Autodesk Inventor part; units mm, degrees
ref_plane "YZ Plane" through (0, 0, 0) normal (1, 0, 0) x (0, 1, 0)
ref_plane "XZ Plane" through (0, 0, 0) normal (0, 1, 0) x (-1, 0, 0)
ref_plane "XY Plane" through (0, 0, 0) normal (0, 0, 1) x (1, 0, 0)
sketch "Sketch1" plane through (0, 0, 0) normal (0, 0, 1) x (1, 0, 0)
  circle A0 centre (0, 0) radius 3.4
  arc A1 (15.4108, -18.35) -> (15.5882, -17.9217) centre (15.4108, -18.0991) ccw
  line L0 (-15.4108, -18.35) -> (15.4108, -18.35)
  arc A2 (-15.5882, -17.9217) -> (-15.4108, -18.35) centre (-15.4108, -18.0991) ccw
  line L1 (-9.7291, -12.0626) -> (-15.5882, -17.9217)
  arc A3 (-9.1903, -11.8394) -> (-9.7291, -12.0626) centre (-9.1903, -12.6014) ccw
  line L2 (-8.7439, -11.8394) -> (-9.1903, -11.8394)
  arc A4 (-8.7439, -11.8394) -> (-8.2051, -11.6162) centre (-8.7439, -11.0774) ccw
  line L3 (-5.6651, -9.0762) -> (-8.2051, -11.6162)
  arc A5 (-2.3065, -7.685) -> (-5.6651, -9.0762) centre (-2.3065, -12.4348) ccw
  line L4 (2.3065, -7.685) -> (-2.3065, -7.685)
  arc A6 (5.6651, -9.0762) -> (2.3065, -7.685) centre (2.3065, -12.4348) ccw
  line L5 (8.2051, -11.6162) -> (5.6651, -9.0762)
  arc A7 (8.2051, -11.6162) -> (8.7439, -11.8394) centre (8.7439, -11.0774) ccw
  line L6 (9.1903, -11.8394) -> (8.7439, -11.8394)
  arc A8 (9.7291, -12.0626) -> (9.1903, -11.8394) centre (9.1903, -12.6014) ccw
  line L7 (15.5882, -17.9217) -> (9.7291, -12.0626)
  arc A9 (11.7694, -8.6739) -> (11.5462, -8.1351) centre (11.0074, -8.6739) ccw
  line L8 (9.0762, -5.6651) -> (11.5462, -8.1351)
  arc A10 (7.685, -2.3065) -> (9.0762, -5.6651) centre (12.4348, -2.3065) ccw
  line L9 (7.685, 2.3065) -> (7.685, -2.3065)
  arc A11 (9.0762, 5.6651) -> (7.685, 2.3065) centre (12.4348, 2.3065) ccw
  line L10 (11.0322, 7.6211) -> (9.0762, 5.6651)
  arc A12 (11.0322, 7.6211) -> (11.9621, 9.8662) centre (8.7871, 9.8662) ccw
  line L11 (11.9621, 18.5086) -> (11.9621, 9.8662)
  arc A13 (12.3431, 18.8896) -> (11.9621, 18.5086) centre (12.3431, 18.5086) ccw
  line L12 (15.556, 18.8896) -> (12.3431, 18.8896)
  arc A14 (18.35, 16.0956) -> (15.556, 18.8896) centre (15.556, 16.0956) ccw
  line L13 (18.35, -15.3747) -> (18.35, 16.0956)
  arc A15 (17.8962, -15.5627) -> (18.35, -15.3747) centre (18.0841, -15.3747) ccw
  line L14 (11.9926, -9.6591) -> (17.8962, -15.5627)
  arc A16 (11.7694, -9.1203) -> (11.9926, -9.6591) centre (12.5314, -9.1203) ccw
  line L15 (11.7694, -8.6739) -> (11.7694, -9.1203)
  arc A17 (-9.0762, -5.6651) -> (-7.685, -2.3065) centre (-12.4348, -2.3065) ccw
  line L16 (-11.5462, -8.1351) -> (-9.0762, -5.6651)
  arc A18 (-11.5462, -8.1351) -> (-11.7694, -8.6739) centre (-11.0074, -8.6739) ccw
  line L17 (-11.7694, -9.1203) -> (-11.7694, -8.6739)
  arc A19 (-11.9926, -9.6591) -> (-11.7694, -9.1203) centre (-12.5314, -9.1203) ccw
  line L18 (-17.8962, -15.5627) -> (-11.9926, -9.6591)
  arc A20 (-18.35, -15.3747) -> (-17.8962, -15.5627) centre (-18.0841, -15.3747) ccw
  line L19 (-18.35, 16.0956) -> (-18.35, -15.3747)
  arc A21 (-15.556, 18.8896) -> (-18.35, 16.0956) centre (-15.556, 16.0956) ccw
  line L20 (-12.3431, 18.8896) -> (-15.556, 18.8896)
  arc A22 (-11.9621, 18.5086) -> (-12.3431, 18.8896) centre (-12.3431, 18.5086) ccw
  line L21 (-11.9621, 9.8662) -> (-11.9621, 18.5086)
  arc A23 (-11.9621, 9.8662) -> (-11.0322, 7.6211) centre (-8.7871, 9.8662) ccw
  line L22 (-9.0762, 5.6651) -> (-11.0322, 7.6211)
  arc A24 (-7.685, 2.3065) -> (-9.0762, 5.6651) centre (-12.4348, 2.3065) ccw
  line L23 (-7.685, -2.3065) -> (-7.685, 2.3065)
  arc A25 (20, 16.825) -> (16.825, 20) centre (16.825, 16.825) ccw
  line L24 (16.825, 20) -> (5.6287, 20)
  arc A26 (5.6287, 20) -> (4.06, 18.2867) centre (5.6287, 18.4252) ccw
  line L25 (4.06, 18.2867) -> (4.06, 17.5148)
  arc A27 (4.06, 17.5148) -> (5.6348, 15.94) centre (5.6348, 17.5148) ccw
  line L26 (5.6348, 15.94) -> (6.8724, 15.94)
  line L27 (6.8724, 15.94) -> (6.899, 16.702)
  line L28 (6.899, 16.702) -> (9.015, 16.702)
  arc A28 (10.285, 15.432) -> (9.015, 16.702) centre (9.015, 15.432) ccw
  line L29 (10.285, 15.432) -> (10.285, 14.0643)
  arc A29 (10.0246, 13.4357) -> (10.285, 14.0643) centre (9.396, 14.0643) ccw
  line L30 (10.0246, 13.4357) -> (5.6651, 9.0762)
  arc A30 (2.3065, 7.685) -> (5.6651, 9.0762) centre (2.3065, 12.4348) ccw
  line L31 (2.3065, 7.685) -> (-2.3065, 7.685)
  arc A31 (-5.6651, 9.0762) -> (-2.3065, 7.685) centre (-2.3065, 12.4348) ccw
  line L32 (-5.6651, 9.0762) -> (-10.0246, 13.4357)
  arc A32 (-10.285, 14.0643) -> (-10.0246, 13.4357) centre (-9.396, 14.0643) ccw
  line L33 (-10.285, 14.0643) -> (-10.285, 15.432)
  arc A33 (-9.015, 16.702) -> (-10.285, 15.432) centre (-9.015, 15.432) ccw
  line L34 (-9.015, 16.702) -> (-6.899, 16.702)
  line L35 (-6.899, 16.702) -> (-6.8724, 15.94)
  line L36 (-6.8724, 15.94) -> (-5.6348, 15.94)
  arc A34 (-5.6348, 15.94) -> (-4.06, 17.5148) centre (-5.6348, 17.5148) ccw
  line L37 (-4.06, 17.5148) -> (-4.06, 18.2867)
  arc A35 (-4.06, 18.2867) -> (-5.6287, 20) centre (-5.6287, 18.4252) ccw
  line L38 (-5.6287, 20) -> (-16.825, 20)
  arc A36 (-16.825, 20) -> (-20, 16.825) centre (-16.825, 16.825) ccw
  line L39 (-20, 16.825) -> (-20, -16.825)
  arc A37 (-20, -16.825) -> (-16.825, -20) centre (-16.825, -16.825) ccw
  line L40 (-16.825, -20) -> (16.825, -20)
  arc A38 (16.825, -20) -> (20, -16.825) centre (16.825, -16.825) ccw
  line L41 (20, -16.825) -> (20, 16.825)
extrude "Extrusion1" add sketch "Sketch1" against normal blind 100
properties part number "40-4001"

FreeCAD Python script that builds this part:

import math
import FreeCAD as App
import Part
import Sketcher
from FreeCAD import Vector
Q = App.Units.Quantity

doc = App.newDocument("Part")
body = doc.addObject("PartDesign::Body", "Body")

# Sketch on XY plane
sketch1 = doc.addObject("Sketcher::SketchObject", "Sketch")
body.addObject(sketch1)
sketch1.AttachmentSupport = (doc.XY_Plane, [""])
sketch1.MapMode = "FlatFace"
sketch1.addGeometry(Part.LineSegment(Vector(20, -16.825, 0), Vector(20, 16.825, 0)), False)
sketch1.addGeometry(Part.ArcOfCircle(Part.Circle(Vector(16.825, 16.825, 0), Vector(0, 0, 1), 3.175), math.radians(0), math.radians(90)), False)
sketch1.addGeometry(Part.LineSegment(Vector(16.825, 20, 0), Vector(5.6287, 20, 0)), False)
sketch1.addGeometry(Part.ArcOfCircle(Part.Circle(Vector(5.6287, 18.4252, 0), Vector(0, 0, 1), 1.5748), math.radians(90), math.radians(185.045542)), False)
sketch1.addGeometry(Part.LineSegment(Vector(4.06, 18.2867, 0), Vector(4.06, 17.5148, 0)), False)
sketch1.addGeometry(Part.ArcOfCircle(Part.Circle(Vector(5.6348, 17.5148, 0), Vector(0, 0, 1), 1.5748), math.radians(180), math.radians(270)), False)
sketch1.addGeometry(Part.LineSegment(Vector(5.6348, 15.94, 0), Vector(6.8724, 15.94, 0)), False)
sketch1.addGeometry(Part.LineSegment(Vector(6.8724, 15.94, 0), Vector(6.899, 16.702, 0)), False)
sketch1.addGeometry(Part.LineSegment(Vector(6.899, 16.702, 0), Vector(9.015, 16.702, 0)), False)
sketch1.addGeometry(Part.ArcOfCircle(Part.Circle(Vector(9.015, 15.432, 0), Vector(0, 0, 1), 1.27), math.radians(0), math.radians(90)), False)
sketch1.addGeometry(Part.LineSegment(Vector(10.285, 15.432, 0), Vector(10.285, 14.0643, 0)), False)
sketch1.addGeometry(Part.ArcOfCircle(Part.Circle(Vector(9.396, 14.0643, 0), Vector(0, 0, 1), 0.888975), math.radians(-45), math.radians(0)), False)
sketch1.addGeometry(Part.LineSegment(Vector(10.0246, 13.4357, 0), Vector(5.6651, 9.0762, 0)), False)
sketch1.addGeometry(Part.ArcOfCircle(Part.Circle(Vector(2.3065, 12.4348, 0), Vector(0, 0, 1), 4.7498), math.radians(-90), math.radians(-45)), False)
sketch1.addGeometry(Part.LineSegment(Vector(2.3065, 7.685, 0), Vector(-2.3065, 7.685, 0)), False)
sketch1.addGeometry(Part.ArcOfCircle(Part.Circle(Vector(-2.3065, 12.4348, 0), Vector(0, 0, 1), 4.749778), math.radians(-135), math.radians(-90)), False)
sketch1.addGeometry(Part.LineSegment(Vector(-5.6651, 9.0762, 0), Vector(-10.0246, 13.4357, 0)), False)
sketch1.addGeometry(Part.ArcOfCircle(Part.Circle(Vector(-9.396, 14.0643, 0), Vector(0, 0, 1), 0.889), math.radians(180), math.radians(225)), False)
sketch1.addGeometry(Part.LineSegment(Vector(-10.285, 14.0643, 0), Vector(-10.285, 15.432, 0)), False)
sketch1.addGeometry(Part.ArcOfCircle(Part.Circle(Vector(-9.015, 15.432, 0), Vector(0, 0, 1), 1.27), math.radians(90), math.radians(180)), False)
sketch1.addGeometry(Part.LineSegment(Vector(-9.015, 16.702, 0), Vector(-6.899, 16.702, 0)), False)
sketch1.addGeometry(Part.LineSegment(Vector(-6.899, 16.702, 0), Vector(-6.8724, 15.94, 0)), False)
sketch1.addGeometry(Part.LineSegment(Vector(-6.8724, 15.94, 0), Vector(-5.6348, 15.94, 0)), False)
sketch1.addGeometry(Part.ArcOfCircle(Part.Circle(Vector(-5.6348, 17.5148, 0), Vector(0, 0, 1), 1.5748), math.radians(-90), math.radians(0)), False)
sketch1.addGeometry(Part.LineSegment(Vector(-4.06, 17.5148, 0), Vector(-4.06, 18.2867, 0)), False)
sketch1.addGeometry(Part.ArcOfCircle(Part.Circle(Vector(-5.6287, 18.4252, 0), Vector(0, 0, 1), 1.574802), math.radians(-5.045542), math.radians(90)), False)
sketch1.addGeometry(Part.LineSegment(Vector(-5.6287, 20, 0), Vector(-16.825, 20, 0)), False)
sketch1.addGeometry(Part.ArcOfCircle(Part.Circle(Vector(-16.825, 16.825, 0), Vector(0, 0, 1), 3.175), math.radians(90), math.radians(180)), False)
sketch1.addGeometry(Part.LineSegment(Vector(-20, 16.825, 0), Vector(-20, -16.825, 0)), False)
sketch1.addGeometry(Part.ArcOfCircle(Part.Circle(Vector(-16.825, -16.825, 0), Vector(0, 0, 1), 3.175), math.radians(180), math.radians(270)), False)
sketch1.addGeometry(Part.LineSegment(Vector(-16.825, -20, 0), Vector(16.825, -20, 0)), False)
sketch1.addGeometry(Part.ArcOfCircle(Part.Circle(Vector(16.825, -16.825, 0), Vector(0, 0, 1), 3.175), math.radians(-90), math.radians(0)), False)
sketch1.addGeometry(Part.ArcOfCircle(Part.Circle(Vector(15.4108, -18.0991, 0), Vector(0, 0, 1), 0.2509), math.radians(-90), math.radians(45)), False)
sketch1.addGeometry(Part.LineSegment(Vector(15.4108, -18.35, 0), Vector(-15.4108, -18.35, 0)), False)
sketch1.addGeometry(Part.ArcOfCircle(Part.Circle(Vector(-15.4108, -18.0991, 0), Vector(0, 0, 1), 0.250881), math.radians(135), math.radians(270)), False)
sketch1.addGeometry(Part.LineSegment(Vector(-15.5882, -17.9217, 0), Vector(-9.7291, -12.0626, 0)), False)
sketch1.addGeometry(Part.ArcOfCircle(Part.Circle(Vector(-9.1903, -12.6014, 0), Vector(0, 0, 1), 0.762), math.radians(90), math.radians(135)), False)
sketch1.addGeometry(Part.LineSegment(Vector(-9.1903, -11.8394, 0), Vector(-8.7439, -11.8394, 0)), False)
sketch1.addGeometry(Part.ArcOfCircle(Part.Circle(Vector(-8.7439, -11.0774, 0), Vector(0, 0, 1), 0.762), math.radians(-90), math.radians(-45)), False)
sketch1.addGeometry(Part.LineSegment(Vector(-8.2051, -11.6162, 0), Vector(-5.6651, -9.0762, 0)), False)
sketch1.addGeometry(Part.ArcOfCircle(Part.Circle(Vector(-2.3065, -12.4348, 0), Vector(0, 0, 1), 4.7498), math.radians(90), math.radians(135)), False)
sketch1.addGeometry(Part.LineSegment(Vector(-2.3065, -7.685, 0), Vector(2.3065, -7.685, 0)), False)
sketch1.addGeometry(Part.ArcOfCircle(Part.Circle(Vector(2.3065, -12.4348, 0), Vector(0, 0, 1), 4.749778), math.radians(45), math.radians(90)), False)
sketch1.addGeometry(Part.LineSegment(Vector(5.6651, -9.0762, 0), Vector(8.2051, -11.6162, 0)), False)
sketch1.addGeometry(Part.ArcOfCircle(Part.Circle(Vector(8.7439, -11.0774, 0), Vector(0, 0, 1), 0.761978), math.radians(-135), math.radians(-90)), False)
sketch1.addGeometry(Part.LineSegment(Vector(8.7439, -11.8394, 0), Vector(9.1903, -11.8394, 0)), False)
sketch1.addGeometry(Part.ArcOfCircle(Part.Circle(Vector(9.1903, -12.6014, 0), Vector(0, 0, 1), 0.761978), math.radians(45), math.radians(90)), False)
sketch1.addGeometry(Part.LineSegment(Vector(9.7291, -12.0626, 0), Vector(15.5882, -17.9217, 0)), False)
sketch1.addGeometry(Part.Circle(Vector(0, 0, 0), Vector(0, 0, 1), 3.4), False)
sketch1.addGeometry(Part.ArcOfCircle(Part.Circle(Vector(-12.4348, -2.3065, 0), Vector(0, 0, 1), 4.749778), math.radians(-45), math.radians(0)), False)
sketch1.addGeometry(Part.LineSegment(Vector(-9.0762, -5.6651, 0), Vector(-11.5462, -8.1351, 0)), False)
sketch1.addGeometry(Part.ArcOfCircle(Part.Circle(Vector(-11.0074, -8.6739, 0), Vector(0, 0, 1), 0.761978), math.radians(135), math.radians(180)), False)
sketch1.addGeometry(Part.LineSegment(Vector(-11.7694, -8.6739, 0), Vector(-11.7694, -9.1203, 0)), False)
sketch1.addGeometry(Part.ArcOfCircle(Part.Circle(Vector(-12.5314, -9.1203, 0), Vector(0, 0, 1), 0.761978), math.radians(-45), math.radians(0)), False)
sketch1.addGeometry(Part.LineSegment(Vector(-11.9926, -9.6591, 0), Vector(-17.8962, -15.5627, 0)), False)
sketch1.addGeometry(Part.ArcOfCircle(Part.Circle(Vector(-18.0841, -15.3747, 0), Vector(0, 0, 1), 0.2659), math.radians(180), math.radians(314.984758)), False)
sketch1.addGeometry(Part.LineSegment(Vector(-18.35, -15.3747, 0), Vector(-18.35, 16.0956, 0)), False)
sketch1.addGeometry(Part.ArcOfCircle(Part.Circle(Vector(-15.556, 16.0956, 0), Vector(0, 0, 1), 2.794), math.radians(90), math.radians(180)), False)
sketch1.addGeometry(Part.LineSegment(Vector(-15.556, 18.8896, 0), Vector(-12.3431, 18.8896, 0)), False)
sketch1.addGeometry(Part.ArcOfCircle(Part.Circle(Vector(-12.3431, 18.5086, 0), Vector(0, 0, 1), 0.381), math.radians(0), math.radians(90)), False)
sketch1.addGeometry(Part.LineSegment(Vector(-11.9621, 18.5086, 0), Vector(-11.9621, 9.8662, 0)), False)
sketch1.addGeometry(Part.ArcOfCircle(Part.Circle(Vector(-8.7871, 9.8662, 0), Vector(0, 0, 1), 3.175), math.radians(180), math.radians(225)), False)
sketch1.addGeometry(Part.LineSegment(Vector(-11.0322, 7.6211, 0), Vector(-9.0762, 5.6651, 0)), False)
sketch1.addGeometry(Part.ArcOfCircle(Part.Circle(Vector(-12.4348, 2.3065, 0), Vector(0, 0, 1), 4.7498), math.radians(0), math.radians(45)), False)
sketch1.addGeometry(Part.LineSegment(Vector(-7.685, 2.3065, 0), Vector(-7.685, -2.3065, 0)), False)
sketch1.addGeometry(Part.LineSegment(Vector(11.7694, -9.1203, 0), Vector(11.7694, -8.6739, 0)), False)
sketch1.addGeometry(Part.ArcOfCircle(Part.Circle(Vector(11.0074, -8.6739, 0), Vector(0, 0, 1), 0.762), math.radians(0), math.radians(45)), False)
sketch1.addGeometry(Part.LineSegment(Vector(11.5462, -8.1351, 0), Vector(9.0762, -5.6651, 0)), False)
sketch1.addGeometry(Part.ArcOfCircle(Part.Circle(Vector(12.4348, -2.3065, 0), Vector(0, 0, 1), 4.7498), math.radians(180), math.radians(225)), False)
sketch1.addGeometry(Part.LineSegment(Vector(7.685, -2.3065, 0), Vector(7.685, 2.3065, 0)), False)
sketch1.addGeometry(Part.ArcOfCircle(Part.Circle(Vector(12.4348, 2.3065, 0), Vector(0, 0, 1), 4.749778), math.radians(135), math.radians(180)), False)
sketch1.addGeometry(Part.LineSegment(Vector(9.0762, 5.6651, 0), Vector(11.0322, 7.6211, 0)), False)
sketch1.addGeometry(Part.ArcOfCircle(Part.Circle(Vector(8.7871, 9.8662, 0), Vector(0, 0, 1), 3.175051), math.radians(-45), math.radians(0)), False)
sketch1.addGeometry(Part.LineSegment(Vector(11.9621, 9.8662, 0), Vector(11.9621, 18.5086, 0)), False)
sketch1.addGeometry(Part.ArcOfCircle(Part.Circle(Vector(12.3431, 18.5086, 0), Vector(0, 0, 1), 0.381), math.radians(90), math.radians(180)), False)
sketch1.addGeometry(Part.LineSegment(Vector(12.3431, 18.8896, 0), Vector(15.556, 18.8896, 0)), False)
sketch1.addGeometry(Part.ArcOfCircle(Part.Circle(Vector(15.556, 16.0956, 0), Vector(0, 0, 1), 2.794), math.radians(0), math.radians(90)), False)
sketch1.addGeometry(Part.LineSegment(Vector(18.35, 16.0956, 0), Vector(18.35, -15.3747, 0)), False)
sketch1.addGeometry(Part.ArcOfCircle(Part.Circle(Vector(18.0841, -15.3747, 0), Vector(0, 0, 1), 0.265801), math.radians(-134.984758), math.radians(0)), False)
sketch1.addGeometry(Part.LineSegment(Vector(17.8962, -15.5627, 0), Vector(11.9926, -9.6591, 0)), False)
sketch1.addGeometry(Part.ArcOfCircle(Part.Circle(Vector(12.5314, -9.1203, 0), Vector(0, 0, 1), 0.762), math.radians(180), math.radians(225)), False)
sketch1.addConstraint(Sketcher.Constraint("Coincident", 0, 2, 1, 1))
sketch1.addConstraint(Sketcher.Constraint("Coincident", 1, 2, 2, 1))
sketch1.addConstraint(Sketcher.Constraint("Coincident", 2, 2, 3, 1))
sketch1.addConstraint(Sketcher.Constraint("Coincident", 3, 2, 4, 1))
sketch1.addConstraint(Sketcher.Constraint("Coincident", 4, 2, 5, 1))
sketch1.addConstraint(Sketcher.Constraint("Coincident", 5, 2, 6, 1))
sketch1.addConstraint(Sketcher.Constraint("Coincident", 6, 2, 7, 1))
sketch1.addConstraint(Sketcher.Constraint("Coincident", 7, 2, 8, 1))
sketch1.addConstraint(Sketcher.Constraint("Coincident", 8, 2, 9, 2))
sketch1.addConstraint(Sketcher.Constraint("Coincident", 9, 1, 10, 1))
sketch1.addConstraint(Sketcher.Constraint("Coincident", 10, 2, 11, 2))
sketch1.addConstraint(Sketcher.Constraint("Coincident", 11, 1, 12, 1))
sketch1.addConstraint(Sketcher.Constraint("Coincident", 12, 2, 13, 2))
sketch1.addConstraint(Sketcher.Constraint("Coincident", 13, 1, 14, 1))
sketch1.addConstraint(Sketcher.Constraint("Coincident", 14, 2, 15, 2))
sketch1.addConstraint(Sketcher.Constraint("Coincident", 15, 1, 16, 1))
sketch1.addConstraint(Sketcher.Constraint("Coincident", 16, 2, 17, 2))
sketch1.addConstraint(Sketcher.Constraint("Coincident", 17, 1, 18, 1))
sketch1.addConstraint(Sketcher.Constraint("Coincident", 18, 2, 19, 2))
sketch1.addConstraint(Sketcher.Constraint("Coincident", 19, 1, 20, 1))
sketch1.addConstraint(Sketcher.Constraint("Coincident", 20, 2, 21, 1))
sketch1.addConstraint(Sketcher.Constraint("Coincident", 21, 2, 22, 1))
sketch1.addConstraint(Sketcher.Constraint("Coincident", 22, 2, 23, 1))
sketch1.addConstraint(Sketcher.Constraint("Coincident", 23, 2, 24, 1))
sketch1.addConstraint(Sketcher.Constraint("Coincident", 24, 2, 25, 1))
sketch1.addConstraint(Sketcher.Constraint("Coincident", 25, 2, 26, 1))
sketch1.addConstraint(Sketcher.Constraint("Coincident", 26, 2, 27, 1))
sketch1.addConstraint(Sketcher.Constraint("Coincident", 27, 2, 28, 1))
sketch1.addConstraint(Sketcher.Constraint("Coincident", 28, 2, 29, 1))
sketch1.addConstraint(Sketcher.Constraint("Coincident", 29, 2, 30, 1))
sketch1.addConstraint(Sketcher.Constraint("Coincident", 30, 2, 31, 1))
sketch1.addConstraint(Sketcher.Constraint("Coincident", 31, 2, 0, 1))
sketch1.addConstraint(Sketcher.Constraint("Coincident", 32, 1, 33, 1))
sketch1.addConstraint(Sketcher.Constraint("Coincident", 33, 2, 34, 2))
sketch1.addConstraint(Sketcher.Constraint("Coincident", 34, 1, 35, 1))
sketch1.addConstraint(Sketcher.Constraint("Coincident", 35, 2, 36, 2))
sketch1.addConstraint(Sketcher.Constraint("Coincident", 36, 1, 37, 1))
sketch1.addConstraint(Sketcher.Constraint("Coincident", 37, 2, 38, 1))
sketch1.addConstraint(Sketcher.Constraint("Coincident", 38, 2, 39, 1))
sketch1.addConstraint(Sketcher.Constraint("Coincident", 39, 2, 40, 2))
sketch1.addConstraint(Sketcher.Constraint("Coincident", 40, 1, 41, 1))
sketch1.addConstraint(Sketcher.Constraint("Coincident", 41, 2, 42, 2))
sketch1.addConstraint(Sketcher.Constraint("Coincident", 42, 1, 43, 1))
sketch1.addConstraint(Sketcher.Constraint("Coincident", 43, 2, 44, 1))
sketch1.addConstraint(Sketcher.Constraint("Coincident", 44, 2, 45, 1))
sketch1.addConstraint(Sketcher.Constraint("Coincident", 45, 2, 46, 2))
sketch1.addConstraint(Sketcher.Constraint("Coincident", 46, 1, 47, 1))
sketch1.addConstraint(Sketcher.Constraint("Coincident", 47, 2, 32, 2))
sketch1.addConstraint(Sketcher.Constraint("Coincident", 49, 1, 50, 1))
sketch1.addConstraint(Sketcher.Constraint("Coincident", 50, 2, 51, 1))
sketch1.addConstraint(Sketcher.Constraint("Coincident", 51, 2, 52, 1))
sketch1.addConstraint(Sketcher.Constraint("Coincident", 52, 2, 53, 2))
sketch1.addConstraint(Sketcher.Constraint("Coincident", 53, 1, 54, 1))
sketch1.addConstraint(Sketcher.Constraint("Coincident", 54, 2, 55, 2))
sketch1.addConstraint(Sketcher.Constraint("Coincident", 55, 1, 56, 1))
sketch1.addConstraint(Sketcher.Constraint("Coincident", 56, 2, 57, 2))
sketch1.addConstraint(Sketcher.Constraint("Coincident", 57, 1, 58, 1))
sketch1.addConstraint(Sketcher.Constraint("Coincident", 58, 2, 59, 2))
sketch1.addConstraint(Sketcher.Constraint("Coincident", 59, 1, 60, 1))
sketch1.addConstraint(Sketcher.Constraint("Coincident", 60, 2, 61, 1))
sketch1.addConstraint(Sketcher.Constraint("Coincident", 61, 2, 62, 1))
sketch1.addConstraint(Sketcher.Constraint("Coincident", 62, 2, 63, 2))
sketch1.addConstraint(Sketcher.Constraint("Coincident", 63, 1, 64, 1))
sketch1.addConstraint(Sketcher.Constraint("Coincident", 64, 2, 49, 2))
sketch1.addConstraint(Sketcher.Constraint("Coincident", 65, 2, 66, 1))
sketch1.addConstraint(Sketcher.Constraint("Coincident", 66, 2, 67, 1))
sketch1.addConstraint(Sketcher.Constraint("Coincident", 67, 2, 68, 2))
sketch1.addConstraint(Sketcher.Constraint("Coincident", 68, 1, 69, 1))
sketch1.addConstraint(Sketcher.Constraint("Coincident", 69, 2, 70, 2))
sketch1.addConstraint(Sketcher.Constraint("Coincident", 70, 1, 71, 1))
sketch1.addConstraint(Sketcher.Constraint("Coincident", 71, 2, 72, 1))
sketch1.addConstraint(Sketcher.Constraint("Coincident", 72, 2, 73, 1))
sketch1.addConstraint(Sketcher.Constraint("Coincident", 73, 2, 74, 2))
sketch1.addConstraint(Sketcher.Constraint("Coincident", 74, 1, 75, 1))
sketch1.addConstraint(Sketcher.Constraint("Coincident", 75, 2, 76, 2))
sketch1.addConstraint(Sketcher.Constraint("Coincident", 76, 1, 77, 1))
sketch1.addConstraint(Sketcher.Constraint("Coincident", 77, 2, 78, 2))
sketch1.addConstraint(Sketcher.Constraint("Coincident", 78, 1, 79, 1))
sketch1.addConstraint(Sketcher.Constraint("Coincident", 79, 2, 80, 2))
sketch1.addConstraint(Sketcher.Constraint("Coincident", 80, 1, 65, 1))
sketch1.addConstraint(Sketcher.Constraint("Vertical", 0))
sketch1.addConstraint(Sketcher.Constraint("Horizontal", 2))
sketch1.addConstraint(Sketcher.Constraint("Vertical", 4))
sketch1.addConstraint(Sketcher.Constraint("Horizontal", 6))
sketch1.addConstraint(Sketcher.Constraint("Horizontal", 8))
sketch1.addConstraint(Sketcher.Constraint("Vertical", 10))
sketch1.addConstraint(Sketcher.Constraint("Horizontal", 14))
sketch1.addConstraint(Sketcher.Constraint("Vertical", 18))
sketch1.addConstraint(Sketcher.Constraint("Horizontal", 20))
sketch1.addConstraint(Sketcher.Constraint("Horizontal", 22))
sketch1.addConstraint(Sketcher.Constraint("Vertical", 24))
sketch1.addConstraint(Sketcher.Constraint("Horizontal", 26))
sketch1.addConstraint(Sketcher.Constraint("Vertical", 28))
sketch1.addConstraint(Sketcher.Constraint("Horizontal", 30))
sketch1.addConstraint(Sketcher.Constraint("Horizontal", 33))
sketch1.addConstraint(Sketcher.Constraint("Horizontal", 37))
sketch1.addConstraint(Sketcher.Constraint("Horizontal", 41))
sketch1.addConstraint(Sketcher.Constraint("Horizontal", 45))
sketch1.addConstraint(Sketcher.Constraint("Vertical", 52))
sketch1.addConstraint(Sketcher.Constraint("Vertical", 56))
sketch1.addConstraint(Sketcher.Constraint("Horizontal", 58))
sketch1.addConstraint(Sketcher.Constraint("Vertical", 60))
sketch1.addConstraint(Sketcher.Constraint("Vertical", 64))
sketch1.addConstraint(Sketcher.Constraint("Vertical", 65))
sketch1.addConstraint(Sketcher.Constraint("Vertical", 69))
sketch1.addConstraint(Sketcher.Constraint("Vertical", 73))
sketch1.addConstraint(Sketcher.Constraint("Horizontal", 75))
sketch1.addConstraint(Sketcher.Constraint("Vertical", 77))
sketch1.addConstraint(Sketcher.Constraint("Coincident", 48, 3, -1, 1))
sketch1.addConstraint(Sketcher.Constraint("Radius", 9, Q("0.05 in")))
sketch1.addConstraint(Sketcher.Constraint("Radius", 19, Q("0.05 in")))
sketch1.addConstraint(Sketcher.Constraint("Radius", 36, Q("0.03 in")))
sketch1.addConstraint(Sketcher.Constraint("Radius", 38, Q("0.03 in")))
sketch1.addConstraint(Sketcher.Constraint("Radius", 44, Q("0.03 in")))
sketch1.addConstraint(Sketcher.Constraint("Radius", 46, Q("0.03 in")))
sketch1.addConstraint(Sketcher.Constraint("Radius", 51, Q("0.03 in")))
sketch1.addConstraint(Sketcher.Constraint("Radius", 53, Q("0.03 in")))
sketch1.addConstraint(Sketcher.Constraint("Radius", 57, Q("0.11 in")))
sketch1.addConstraint(Sketcher.Constraint("Radius", 66, Q("0.03 in")))
sketch1.addConstraint(Sketcher.Constraint("Radius", 76, Q("0.11 in")))
sketch1.addConstraint(Sketcher.Constraint("Radius", 80, Q("0.03 in")))
sketch1.addConstraint(Sketcher.Constraint("Radius", 1, Q("0.125 in")))
sketch1.addConstraint(Sketcher.Constraint("Radius", 3, Q("0.062 in")))
sketch1.addConstraint(Sketcher.Constraint("Radius", 5, Q("0.062 in")))
sketch1.addConstraint(Sketcher.Constraint("Radius", 11, Q("0.035 in")))
sketch1.addConstraint(Sketcher.Constraint("Radius", 13, Q("0.187 in")))
sketch1.addConstraint(Sketcher.Constraint("Radius", 15, Q("0.187 in")))
sketch1.addConstraint(Sketcher.Constraint("Radius", 17, Q("0.035 in")))
sketch1.addConstraint(Sketcher.Constraint("Radius", 23, Q("0.062 in")))
sketch1.addConstraint(Sketcher.Constraint("Radius", 25, Q("0.062 in")))
sketch1.addConstraint(Sketcher.Constraint("Radius", 27, Q("0.125 in")))
sketch1.addConstraint(Sketcher.Constraint("Radius", 29, Q("0.125 in")))
sketch1.addConstraint(Sketcher.Constraint("Radius", 31, Q("0.125 in")))
sketch1.addConstraint(Sketcher.Constraint("Radius", 40, Q("0.187 in")))
sketch1.addConstraint(Sketcher.Constraint("Radius", 42, Q("0.187 in")))
sketch1.addConstraint(Sketcher.Constraint("Radius", 49, Q("0.187 in")))
sketch1.addConstraint(Sketcher.Constraint("Radius", 59, Q("0.015 in")))
sketch1.addConstraint(Sketcher.Constraint("Radius", 61, Q("0.125 in")))
sketch1.addConstraint(Sketcher.Constraint("Radius", 63, Q("0.187 in")))
sketch1.addConstraint(Sketcher.Constraint("Radius", 68, Q("0.187 in")))
sketch1.addConstraint(Sketcher.Constraint("Radius", 70, Q("0.187 in")))
sketch1.addConstraint(Sketcher.Constraint("Radius", 72, Q("0.125 in")))
sketch1.addConstraint(Sketcher.Constraint("Radius", 74, Q("0.015 in")))
sketch1.addConstraint(Sketcher.Constraint("Diameter", 48, 6.8))
sketch1.addConstraint(Sketcher.Constraint("DistanceY", 56, 1, 56, 2, Q("1.239 in")))
sketch1.addConstraint(Sketcher.Constraint("DistanceY", 77, 2, 77, 1, Q("1.239 in")))
sketch1.addConstraint(Sketcher.Constraint("Radius", 32, 0.251))
sketch1.addConstraint(Sketcher.Constraint("Radius", 34, 0.251))
sketch1.addConstraint(Sketcher.Constraint("Radius", 55, 0.266))
sketch1.addConstraint(Sketcher.Constraint("Radius", 78, 0.2658))
sketch1.addConstraint(Sketcher.Constraint("DistanceX", 2, 2, 2, 1, Q("0.4408 in")))
sketch1.addConstraint(Sketcher.Constraint("DistanceX", 8, 1, 8, 2, Q("0.0833 in")))
sketch1.addConstraint(Sketcher.Constraint("DistanceX", 20, 1, 20, 2, Q("0.0833 in")))
sketch1.addConstraint(Sketcher.Constraint("DistanceX", 26, 2, 26, 1, Q("0.4408 in")))
sketch1.addConstraint(Sketcher.Constraint("DistanceX", 30, 1, 30, 2, Q("1.3248 in")))
sketch1.addConstraint(Sketcher.Constraint("DistanceX", 58, 1, 58, 2, Q("0.1265 in")))
sketch1.addConstraint(Sketcher.Constraint("DistanceX", 75, 1, 75, 2, Q("0.1265 in")))
sketch1.addConstraint(Sketcher.Constraint("DistanceY", 0, 1, 0, 2, Q("1.3248 in")))
sketch1.addConstraint(Sketcher.Constraint("DistanceY", 4, 2, 4, 1, Q("0.0304 in")))
sketch1.addConstraint(Sketcher.Constraint("DistanceY", 24, 1, 24, 2, Q("0.0304 in")))
sketch1.addConstraint(Sketcher.Constraint("DistanceY", 28, 2, 28, 1, Q("1.3248 in")))
sketch1.addConstraint(Sketcher.Constraint("Distance", 54, Q("0.3287 in")))
sketch1.addConstraint(Sketcher.Constraint("Distance", 62, Q("0.1089 in")))
sketch1.addConstraint(Sketcher.Constraint("Distance", 71, Q("0.1089 in")))
sketch1.addConstraint(Sketcher.Constraint("Distance", 79, Q("0.3287 in")))
sketch1.addConstraint(Sketcher.Constraint("DistanceX", 6, 1, 6, 2, 1.2376))
sketch1.addConstraint(Sketcher.Constraint("DistanceX", 14, 2, 14, 1, 4.613))
sketch1.addConstraint(Sketcher.Constraint("DistanceX", 22, 1, 22, 2, 1.2376))
sketch1.addConstraint(Sketcher.Constraint("DistanceX", 33, 2, 33, 1, 30.8216))
sketch1.addConstraint(Sketcher.Constraint("DistanceX", 37, 1, 37, 2, 0.4464))
sketch1.addConstraint(Sketcher.Constraint("DistanceX", 41, 1, 41, 2, 4.613))
sketch1.addConstraint(Sketcher.Constraint("DistanceX", 45, 1, 45, 2, 0.4464))
sketch1.addConstraint(Sketcher.Constraint("DistanceY", 10, 2, 10, 1, 1.3677))
sketch1.addConstraint(Sketcher.Constraint("DistanceY", 18, 1, 18, 2, 1.3677))
sketch1.addConstraint(Sketcher.Constraint("DistanceY", 52, 2, 52, 1, 0.4464))
sketch1.addConstraint(Sketcher.Constraint("DistanceY", 60, 2, 60, 1, 8.6424))
sketch1.addConstraint(Sketcher.Constraint("DistanceY", 64, 2, 64, 1, 4.613))
sketch1.addConstraint(Sketcher.Constraint("DistanceY", 65, 1, 65, 2, 0.4464))
sketch1.addConstraint(Sketcher.Constraint("DistanceY", 69, 1, 69, 2, 4.613))
sketch1.addConstraint(Sketcher.Constraint("DistanceY", 73, 1, 73, 2, 8.6424))
sketch1.addConstraint(Sketcher.Constraint("DistanceX", -1, 1, 1, 3, Q("0.6624 in")))
sketch1.addConstraint(Sketcher.Constraint("DistanceY", -1, 1, 1, 3, Q("0.6624 in")))
sketch1.addConstraint(Sketcher.Constraint("DistanceX", -1, 1, 3, 3, Q("0.2216 in")))
sketch1.addConstraint(Sketcher.Constraint("DistanceX", -1, 1, 13, 3, Q("0.0908 in")))
sketch1.addConstraint(Sketcher.Constraint("DistanceX", 15, 3, -1, 1, Q("0.0908 in")))
sketch1.addConstraint(Sketcher.Constraint("DistanceX", 25, 3, -1, 1, Q("0.2216 in")))
sketch1.addConstraint(Sketcher.Constraint("DistanceY", -1, 1, 25, 3, Q("0.7254 in")))
sketch1.addConstraint(Sketcher.Constraint("DistanceX", 27, 3, -1, 1, Q("0.6624 in")))
sketch1.addConstraint(Sketcher.Constraint("DistanceY", 29, 3, -1, 1, Q("0.6624 in")))
sketch1.addConstraint(Sketcher.Constraint("DistanceX", 40, 3, -1, 1, Q("0.0908 in")))
sketch1.addConstraint(Sketcher.Constraint("DistanceX", -1, 1, 42, 3, Q("0.0908 in")))
sketch1.addConstraint(Sketcher.Constraint("DistanceY", 49, 3, -1, 1, Q("0.0908 in")))
sketch1.addConstraint(Sketcher.Constraint("DistanceY", 51, 3, -1, 1, Q("0.3415 in")))
sketch1.addConstraint(Sketcher.Constraint("DistanceY", 55, 3, -1, 1, Q("0.6053 in")))
sketch1.addConstraint(Sketcher.Constraint("DistanceY", -1, 1, 63, 3, Q("0.0908 in")))
sketch1.addConstraint(Sketcher.Constraint("DistanceY", 66, 3, -1, 1, Q("0.3415 in")))
sketch1.addConstraint(Sketcher.Constraint("DistanceY", 68, 3, -1, 1, Q("0.0908 in")))
sketch1.addConstraint(Sketcher.Constraint("DistanceY", -1, 1, 70, 3, Q("0.0908 in")))
sketch1.addConstraint(Sketcher.Constraint("DistanceY", 78, 3, -1, 1, Q("0.6053 in")))
sketch1.addConstraint(Sketcher.Constraint("DistanceY", -1, 1, 0, 2, Q("0.6624 in")))
sketch1.addConstraint(Sketcher.Constraint("DistanceX", -1, 1, 1, 2, Q("0.6624 in")))
sketch1.addConstraint(Sketcher.Constraint("DistanceX", -1, 1, 13, 1, Q("0.0908 in")))
sketch1.addConstraint(Sketcher.Constraint("DistanceX", 25, 2, -1, 1, Q("0.2216 in")))
sketch1.addConstraint(Sketcher.Constraint("DistanceY", -1, 1, 27, 2, Q("0.6624 in")))
sketch1.addConstraint(Sketcher.Constraint("DistanceX", 29, 2, -1, 1, Q("0.6624 in")))
sketch1.addConstraint(Sketcher.Constraint("DistanceX", 34, 1, -1, 1, Q("0.6137 in")))
sketch1.addConstraint(Sketcher.Constraint("DistanceY", 35, 2, -1, 1, Q("0.4749 in")))
sketch1.addConstraint(Sketcher.Constraint("DistanceX", 40, 1, -1, 1, Q("0.0908 in")))
sketch1.addConstraint(Sketcher.Constraint("DistanceY", 46, 1, -1, 1, Q("0.4749 in")))
sketch1.addConstraint(Sketcher.Constraint("DistanceX", -1, 1, 47, 2, Q("0.6137 in")))
sketch1.addConstraint(Sketcher.Constraint("DistanceY", 51, 2, -1, 1, Q("0.3415 in")))
sketch1.addConstraint(Sketcher.Constraint("DistanceY", 54, 2, -1, 1, Q("0.6127 in")))
sketch1.addConstraint(Sketcher.Constraint("DistanceY", 55, 1, -1, 1, Q("0.6053 in")))
sketch1.addConstraint(Sketcher.Constraint("DistanceY", -1, 1, 63, 1, Q("0.0908 in")))
sketch1.addConstraint(Sketcher.Constraint("DistanceY", 65, 2, -1, 1, Q("0.3415 in")))
sketch1.addConstraint(Sketcher.Constraint("DistanceY", 68, 1, -1, 1, Q("0.0908 in")))
sketch1.addConstraint(Sketcher.Constraint("DistanceY", 77, 2, -1, 1, Q("0.6053 in")))
sketch1.addConstraint(Sketcher.Constraint("DistanceY", 78, 1, -1, 1, Q("0.6127 in")))
sketch1.addConstraint(Sketcher.Constraint("Distance", 7, 0.7625))
sketch1.addConstraint(Sketcher.Constraint("Distance", 12, 6.1653))
sketch1.addConstraint(Sketcher.Constraint("Distance", 16, 6.1653))
sketch1.addConstraint(Sketcher.Constraint("Distance", 21, 0.7625))
sketch1.addConstraint(Sketcher.Constraint("Distance", 35, 8.286))
sketch1.addConstraint(Sketcher.Constraint("Distance", 39, 3.592))
sketch1.addConstraint(Sketcher.Constraint("Distance", 43, 3.592))
sketch1.addConstraint(Sketcher.Constraint("Distance", 47, 8.286))
sketch1.addConstraint(Sketcher.Constraint("Distance", 50, 3.493))
sketch1.addConstraint(Sketcher.Constraint("Distance", 67, 3.493))
sketch1.addConstraint(Sketcher.Constraint("DistanceX", -1, 1, 5, 3, 5.6348))
sketch1.addConstraint(Sketcher.Constraint("DistanceY", -1, 1, 5, 3, 17.5148))
sketch1.addConstraint(Sketcher.Constraint("DistanceX", -1, 1, 9, 3, 9.015))
sketch1.addConstraint(Sketcher.Constraint("DistanceY", -1, 1, 9, 3, 15.432))
sketch1.addConstraint(Sketcher.Constraint("DistanceY", -1, 1, 11, 3, 14.0643))
sketch1.addConstraint(Sketcher.Constraint("DistanceY", -1, 1, 13, 3, 12.4348))
sketch1.addConstraint(Sketcher.Constraint("DistanceX", 17, 3, -1, 1, 9.396))
sketch1.addConstraint(Sketcher.Constraint("DistanceY", -1, 1, 17, 3, 14.0643))
sketch1.addConstraint(Sketcher.Constraint("DistanceY", -1, 1, 19, 3, 15.432))
sketch1.addConstraint(Sketcher.Constraint("DistanceX", 23, 3, -1, 1, 5.6348))
sketch1.addConstraint(Sketcher.Constraint("DistanceY", -1, 1, 23, 3, 17.5148))
sketch1.addConstraint(Sketcher.Constraint("DistanceX", -1, 1, 32, 3, 15.4108))
sketch1.addConstraint(Sketcher.Constraint("DistanceY", 32, 3, -1, 1, 18.099))
sketch1.addConstraint(Sketcher.Constraint("DistanceX", 34, 3, -1, 1, 15.4108))
sketch1.addConstraint(Sketcher.Constraint("DistanceX", 36, 3, -1, 1, 9.1903))
sketch1.addConstraint(Sketcher.Constraint("DistanceX", 38, 3, -1, 1, 8.744))
sketch1.addConstraint(Sketcher.Constraint("DistanceY", 40, 3, -1, 1, 12.4348))
sketch1.addConstraint(Sketcher.Constraint("DistanceX", -1, 1, 44, 3, 8.744))
sketch1.addConstraint(Sketcher.Constraint("DistanceY", 44, 3, -1, 1, 11.0774))
sketch1.addConstraint(Sketcher.Constraint("DistanceX", 49, 3, -1, 1, 12.4348))
sketch1.addConstraint(Sketcher.Constraint("DistanceX", 51, 3, -1, 1, 11.0074))
sketch1.addConstraint(Sketcher.Constraint("DistanceY", 53, 3, -1, 1, 9.1203))
sketch1.addConstraint(Sketcher.Constraint("DistanceX", 55, 3, -1, 1, 18.084))
sketch1.addConstraint(Sketcher.Constraint("DistanceY", -1, 1, 57, 3, 16.0956))
sketch1.addConstraint(Sketcher.Constraint("DistanceX", 59, 3, -1, 1, 12.343))
sketch1.addConstraint(Sketcher.Constraint("DistanceY", -1, 1, 61, 3, 9.8662))
sketch1.addConstraint(Sketcher.Constraint("DistanceX", -1, 1, 66, 3, 11.0074))
sketch1.addConstraint(Sketcher.Constraint("DistanceX", -1, 1, 68, 3, 12.4348))
sketch1.addConstraint(Sketcher.Constraint("DistanceX", -1, 1, 72, 3, 8.787))
sketch1.addConstraint(Sketcher.Constraint("DistanceY", -1, 1, 72, 3, 9.8662))
sketch1.addConstraint(Sketcher.Constraint("DistanceY", -1, 1, 74, 3, 18.5086))
sketch1.addConstraint(Sketcher.Constraint("DistanceX", -1, 1, 76, 3, 15.556))
sketch1.addConstraint(Sketcher.Constraint("DistanceY", 80, 3, -1, 1, 9.1203))
sketch1.addConstraint(Sketcher.Constraint("DistanceX", -1, 1, 5, 2, 5.6348))
sketch1.addConstraint(Sketcher.Constraint("DistanceY", -1, 1, 9, 1, 15.432))
sketch1.addConstraint(Sketcher.Constraint("DistanceX", -1, 1, 11, 1, 10.0246))
sketch1.addConstraint(Sketcher.Constraint("DistanceX", 15, 1, -1, 1, 5.665))
sketch1.addConstraint(Sketcher.Constraint("DistanceY", -1, 1, 17, 1, 14.0643))
sketch1.addConstraint(Sketcher.Constraint("DistanceX", 19, 1, -1, 1, 9.015))
sketch1.addConstraint(Sketcher.Constraint("DistanceX", -1, 1, 32, 1, 15.4108))
sketch1.addConstraint(Sketcher.Constraint("DistanceX", 36, 1, -1, 1, 9.1903))
sketch1.addConstraint(Sketcher.Constraint("DistanceX", 38, 2, -1, 1, 8.205))
sketch1.addConstraint(Sketcher.Constraint("DistanceX", -1, 1, 42, 1, 5.665))
sketch1.addConstraint(Sketcher.Constraint("DistanceX", -1, 1, 44, 2, 8.744))
sketch1.addConstraint(Sketcher.Constraint("DistanceX", 49, 1, -1, 1, 9.0762))
sketch1.addConstraint(Sketcher.Constraint("DistanceX", 57, 1, -1, 1, 15.556))
sketch1.addConstraint(Sketcher.Constraint("DistanceY", -1, 1, 59, 1, 18.5086))
sketch1.addConstraint(Sketcher.Constraint("DistanceX", 61, 2, -1, 1, 11.0322))
sketch1.addConstraint(Sketcher.Constraint("DistanceX", -1, 1, 66, 2, 11.5462))
sketch1.addConstraint(Sketcher.Constraint("DistanceX", -1, 1, 70, 1, 9.0762))
sketch1.addConstraint(Sketcher.Constraint("DistanceY", -1, 1, 72, 2, 9.8662))
sketch1.addConstraint(Sketcher.Constraint("DistanceX", -1, 1, 74, 1, 12.343))
pad1 = doc.addObject("PartDesign::Pad", "Pad")
body.addObject(pad1)
pad1.Profile = sketch1
pad1.Length = Q("3.9370079 in")
pad1.Reversed = True

doc.recompute()
